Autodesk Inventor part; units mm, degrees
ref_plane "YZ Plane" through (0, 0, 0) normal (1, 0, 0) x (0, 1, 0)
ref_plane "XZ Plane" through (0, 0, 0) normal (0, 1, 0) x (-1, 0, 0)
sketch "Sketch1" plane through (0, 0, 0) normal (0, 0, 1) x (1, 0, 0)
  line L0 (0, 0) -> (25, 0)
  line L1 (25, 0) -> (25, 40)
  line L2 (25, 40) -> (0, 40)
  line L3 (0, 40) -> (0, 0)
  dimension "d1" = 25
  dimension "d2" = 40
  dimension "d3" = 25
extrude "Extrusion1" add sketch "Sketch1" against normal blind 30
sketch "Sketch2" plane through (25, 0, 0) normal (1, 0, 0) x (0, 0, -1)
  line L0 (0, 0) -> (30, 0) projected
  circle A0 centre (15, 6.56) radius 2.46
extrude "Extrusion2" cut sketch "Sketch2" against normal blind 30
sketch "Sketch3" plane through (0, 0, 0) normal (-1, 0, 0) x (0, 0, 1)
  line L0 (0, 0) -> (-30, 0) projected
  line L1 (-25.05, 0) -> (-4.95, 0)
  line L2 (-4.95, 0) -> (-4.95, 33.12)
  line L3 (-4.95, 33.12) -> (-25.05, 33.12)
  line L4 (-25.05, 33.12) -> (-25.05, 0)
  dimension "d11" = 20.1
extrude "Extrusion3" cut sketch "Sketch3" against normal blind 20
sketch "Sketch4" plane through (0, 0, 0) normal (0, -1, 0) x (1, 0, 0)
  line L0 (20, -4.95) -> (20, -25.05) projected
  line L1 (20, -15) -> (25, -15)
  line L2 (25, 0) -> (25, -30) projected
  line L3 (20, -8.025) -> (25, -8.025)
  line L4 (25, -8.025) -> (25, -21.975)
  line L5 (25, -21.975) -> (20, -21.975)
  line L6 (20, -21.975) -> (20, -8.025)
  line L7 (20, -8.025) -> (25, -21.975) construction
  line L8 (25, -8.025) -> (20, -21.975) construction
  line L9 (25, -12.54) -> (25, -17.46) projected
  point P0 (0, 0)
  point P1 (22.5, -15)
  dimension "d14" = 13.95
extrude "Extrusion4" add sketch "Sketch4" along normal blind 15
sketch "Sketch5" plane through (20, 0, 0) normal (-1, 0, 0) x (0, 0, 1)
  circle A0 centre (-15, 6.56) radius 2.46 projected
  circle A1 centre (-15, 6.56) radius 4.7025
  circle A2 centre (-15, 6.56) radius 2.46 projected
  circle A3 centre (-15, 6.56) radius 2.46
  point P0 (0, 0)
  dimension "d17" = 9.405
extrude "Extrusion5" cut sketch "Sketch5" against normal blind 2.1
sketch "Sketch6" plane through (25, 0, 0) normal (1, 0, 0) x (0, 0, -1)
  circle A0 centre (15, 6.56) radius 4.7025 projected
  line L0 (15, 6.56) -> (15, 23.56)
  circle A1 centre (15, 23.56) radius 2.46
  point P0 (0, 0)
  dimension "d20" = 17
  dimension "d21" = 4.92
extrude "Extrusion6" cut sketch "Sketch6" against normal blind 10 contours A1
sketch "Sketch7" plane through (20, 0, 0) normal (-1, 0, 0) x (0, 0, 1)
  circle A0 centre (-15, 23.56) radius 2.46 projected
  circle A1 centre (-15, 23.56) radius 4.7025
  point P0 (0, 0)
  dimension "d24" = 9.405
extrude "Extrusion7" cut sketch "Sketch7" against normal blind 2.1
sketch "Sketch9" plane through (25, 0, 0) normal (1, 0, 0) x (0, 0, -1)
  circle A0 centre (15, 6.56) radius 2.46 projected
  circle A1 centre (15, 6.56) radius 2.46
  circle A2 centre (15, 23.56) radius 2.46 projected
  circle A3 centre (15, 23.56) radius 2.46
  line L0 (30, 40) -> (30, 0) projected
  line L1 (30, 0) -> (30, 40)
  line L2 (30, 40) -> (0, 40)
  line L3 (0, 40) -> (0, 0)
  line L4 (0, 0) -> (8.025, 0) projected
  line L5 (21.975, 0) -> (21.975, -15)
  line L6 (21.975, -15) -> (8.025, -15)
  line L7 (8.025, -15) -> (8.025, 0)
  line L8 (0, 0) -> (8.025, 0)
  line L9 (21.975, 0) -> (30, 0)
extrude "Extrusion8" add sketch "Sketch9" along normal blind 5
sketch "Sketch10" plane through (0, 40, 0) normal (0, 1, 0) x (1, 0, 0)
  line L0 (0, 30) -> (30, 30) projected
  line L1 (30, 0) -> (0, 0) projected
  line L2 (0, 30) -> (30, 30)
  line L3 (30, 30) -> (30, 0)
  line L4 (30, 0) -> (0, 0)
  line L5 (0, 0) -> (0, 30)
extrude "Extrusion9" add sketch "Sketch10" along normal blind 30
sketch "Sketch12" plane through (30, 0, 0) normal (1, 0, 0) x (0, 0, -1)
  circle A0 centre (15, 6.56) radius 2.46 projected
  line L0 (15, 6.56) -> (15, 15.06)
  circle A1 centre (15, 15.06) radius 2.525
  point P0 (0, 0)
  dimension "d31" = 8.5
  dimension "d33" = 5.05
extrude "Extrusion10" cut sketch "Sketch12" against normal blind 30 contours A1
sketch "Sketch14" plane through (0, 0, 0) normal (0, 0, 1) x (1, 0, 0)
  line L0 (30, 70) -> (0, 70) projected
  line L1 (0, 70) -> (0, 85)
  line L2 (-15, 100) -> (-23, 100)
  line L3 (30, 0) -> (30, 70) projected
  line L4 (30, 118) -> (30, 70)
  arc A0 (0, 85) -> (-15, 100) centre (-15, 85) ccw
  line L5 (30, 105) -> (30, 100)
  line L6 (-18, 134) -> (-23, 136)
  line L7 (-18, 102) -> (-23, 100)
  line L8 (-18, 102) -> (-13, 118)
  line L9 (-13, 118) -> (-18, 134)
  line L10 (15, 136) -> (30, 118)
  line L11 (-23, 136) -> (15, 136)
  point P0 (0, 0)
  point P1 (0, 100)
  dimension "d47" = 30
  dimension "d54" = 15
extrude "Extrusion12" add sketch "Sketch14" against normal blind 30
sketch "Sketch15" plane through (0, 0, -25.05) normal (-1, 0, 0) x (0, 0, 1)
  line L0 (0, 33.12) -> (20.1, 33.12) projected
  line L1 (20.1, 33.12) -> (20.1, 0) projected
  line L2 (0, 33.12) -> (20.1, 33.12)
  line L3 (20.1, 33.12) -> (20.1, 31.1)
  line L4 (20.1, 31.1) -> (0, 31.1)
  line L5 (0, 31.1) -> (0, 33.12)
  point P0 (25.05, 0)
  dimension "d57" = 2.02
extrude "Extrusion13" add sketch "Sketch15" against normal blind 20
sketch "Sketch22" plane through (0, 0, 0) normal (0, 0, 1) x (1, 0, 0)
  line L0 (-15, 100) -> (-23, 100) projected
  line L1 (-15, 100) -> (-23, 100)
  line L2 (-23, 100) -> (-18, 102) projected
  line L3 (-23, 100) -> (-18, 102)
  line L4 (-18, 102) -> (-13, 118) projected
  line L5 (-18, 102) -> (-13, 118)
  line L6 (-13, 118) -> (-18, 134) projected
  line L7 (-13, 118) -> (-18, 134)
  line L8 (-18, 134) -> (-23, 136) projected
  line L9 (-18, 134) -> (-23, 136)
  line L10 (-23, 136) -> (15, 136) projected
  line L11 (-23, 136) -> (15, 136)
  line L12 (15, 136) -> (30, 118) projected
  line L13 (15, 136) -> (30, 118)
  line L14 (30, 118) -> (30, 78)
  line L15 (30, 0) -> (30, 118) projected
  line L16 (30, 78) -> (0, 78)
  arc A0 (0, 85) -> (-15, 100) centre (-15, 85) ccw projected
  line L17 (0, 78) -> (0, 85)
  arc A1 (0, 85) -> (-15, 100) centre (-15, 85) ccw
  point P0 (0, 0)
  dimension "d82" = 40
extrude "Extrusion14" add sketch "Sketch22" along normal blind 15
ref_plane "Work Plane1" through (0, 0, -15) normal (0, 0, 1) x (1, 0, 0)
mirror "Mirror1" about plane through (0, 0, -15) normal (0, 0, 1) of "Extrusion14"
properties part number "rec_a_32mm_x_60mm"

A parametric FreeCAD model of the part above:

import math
import FreeCAD as App
import Part
import Sketcher
Q = App.Units.Quantity

doc = App.newDocument("Part")
body = doc.addObject("PartDesign::Body", "Body")

# Sketch on XY plane
sketch1 = body.newObject("Sketcher::SketchObject", "Sketch")
sketch1.AttachmentSupport = (doc.getObject("XY_Plane"), [""])
sketch1.MapMode = "FlatFace"
sketch1.addGeometry([
    Part.LineSegment(App.Vector(0, 40, 0), App.Vector(0, 0, 0)),
    Part.LineSegment(App.Vector(0, 0, 0), App.Vector(25, 0, 0)),
    Part.LineSegment(App.Vector(25, 0, 0), App.Vector(25, 40, 0)),
    Part.LineSegment(App.Vector(25, 40, 0), App.Vector(0, 40, 0)),
], False)
sketch1.addConstraint([
    Sketcher.Constraint("Coincident", 0, 2, 1, 1),
    Sketcher.Constraint("Coincident", 1, 2, 2, 1),
    Sketcher.Constraint("Coincident", 2, 2, 3, 1),
    Sketcher.Constraint("Coincident", 3, 2, 0, 1),
    Sketcher.Constraint("Vertical", 0),
    Sketcher.Constraint("Horizontal", 1),
    Sketcher.Constraint("Vertical", 2),
    Sketcher.Constraint("Horizontal", 3),
    Sketcher.Constraint("Coincident", 0, 2, -1, 1),
    Sketcher.Constraint("DistanceX", 1, 1, 1, 2, Q("25 mm")),
    Sketcher.Constraint("DistanceY", 0, 2, 0, 1, Q("40 mm")),
])
pad1 = body.newObject("PartDesign::Pad", "Pad")
pad1.Profile = sketch1
pad1.Length = 30
pad1.Reversed = True

# Sketch on YZ plane
sketch2 = body.newObject("Sketcher::SketchObject", "Sketch001")
sketch2.AttachmentSupport = (doc.getObject("YZ_Plane"), [""])
sketch2.MapMode = "FlatFace"
sketch2.AttachmentOffset = App.Placement(App.Vector(0, 0, 25), App.Rotation())
sketch2.addGeometry(Part.Circle(App.Vector(6.56, -15, 0), App.Vector(0, 0, 1), 2.46), False)
sketch2.addConstraint([
    Sketcher.Constraint("Diameter", 0, Q("4.92 mm")),
    Sketcher.Constraint("DistanceY", 0, 3, -1, 1, Q("15 mm")),
    Sketcher.Constraint("DistanceX", -1, 1, 0, 3, Q("6.56 mm")),
])
pocket1 = body.newObject("PartDesign::Pocket", "Pocket")
pocket1.Profile = sketch2
pocket1.Length = 30

# Sketch on YZ plane
sketch3 = body.newObject("Sketcher::SketchObject", "Sketch002")
sketch3.AttachmentSupport = (doc.getObject("YZ_Plane"), [""])
sketch3.MapMode = "FlatFace"
sketch3.addGeometry([
    Part.LineSegment(App.Vector(0, -25.05, 0), App.Vector(0, -4.95, 0)),
    Part.LineSegment(App.Vector(0, -4.95, 0), App.Vector(33.12, -4.95, 0)),
    Part.LineSegment(App.Vector(33.12, -4.95, 0), App.Vector(33.12, -25.05, 0)),
    Part.LineSegment(App.Vector(33.12, -25.05, 0), App.Vector(0, -25.05, 0)),
], False)
sketch3.addConstraint([
    Sketcher.Constraint("Coincident", 0, 2, 1, 1),
    Sketcher.Constraint("Coincident", 1, 2, 2, 1),
    Sketcher.Constraint("Coincident", 2, 2, 3, 1),
    Sketcher.Constraint("Coincident", 3, 2, 0, 1),
    Sketcher.Constraint("Vertical", 0),
    Sketcher.Constraint("Horizontal", 1),
    Sketcher.Constraint("Vertical", 2),
    Sketcher.Constraint("Horizontal", 3),
    Sketcher.Constraint("PointOnObject", 0, 2, -2),
    Sketcher.Constraint("DistanceY", 0, 1, 0, 2, Q("20.1 mm")),
    Sketcher.Constraint("DistanceX", 1, 1, 1, 2, Q("33.12 mm")),
    Sketcher.Constraint("DistanceY", 0, 2, -1, 1, Q("4.95 mm")),
])
pocket2 = body.newObject("PartDesign::Pocket", "Pocket001")
pocket2.Profile = sketch3
pocket2.Length = 20
pocket2.Reversed = True

# Sketch on XZ plane
sketch4 = body.newObject("Sketcher::SketchObject", "Sketch003")
sketch4.AttachmentSupport = (doc.getObject("XZ_Plane"), [""])
sketch4.MapMode = "FlatFace"
sketch4.addGeometry([
    Part.LineSegment(App.Vector(25, -8.025, 0), App.Vector(20, -8.025, 0)),
    Part.LineSegment(App.Vector(20, -8.025, 0), App.Vector(20, -21.975, 0)),
    Part.LineSegment(App.Vector(20, -21.975, 0), App.Vector(25, -21.975, 0)),
    Part.LineSegment(App.Vector(25, -21.975, 0), App.Vector(25, -8.025, 0)),
], False)
sketch4.addConstraint([
    Sketcher.Constraint("Coincident", 0, 2, 1, 1),
    Sketcher.Constraint("Coincident", 1, 2, 2, 1),
    Sketcher.Constraint("Coincident", 2, 2, 3, 1),
    Sketcher.Constraint("Coincident", 3, 2, 0, 1),
    Sketcher.Constraint("Horizontal", 0),
    Sketcher.Constraint("Vertical", 1),
    Sketcher.Constraint("Horizontal", 2),
    Sketcher.Constraint("Vertical", 3),
    Sketcher.Constraint("DistanceY", 1, 2, 1, 1, Q("13.95 mm")),
    Sketcher.Constraint("DistanceX", 0, 2, 0, 1, Q("5 mm")),
    Sketcher.Constraint("DistanceX", -1, 1, 0, 2, Q("20 mm")),
    Sketcher.Constraint("DistanceY", 0, 2, -1, 1, Q("8.025 mm")),
])
pad2 = body.newObject("PartDesign::Pad", "Pad001")
pad2.Profile = sketch4
pad2.Length = 15

# Sketch on YZ plane
sketch5 = body.newObject("Sketcher::SketchObject", "Sketch004")
sketch5.AttachmentSupport = (doc.getObject("YZ_Plane"), [""])
sketch5.MapMode = "FlatFace"
sketch5.AttachmentOffset = App.Placement(App.Vector(0, 0, 20), App.Rotation())
sketch5.addGeometry([
    Part.Circle(App.Vector(6.56, -15, 0), App.Vector(0, 0, 1), 4.7025),
    Part.Circle(App.Vector(6.56, -15, 0), App.Vector(0, 0, 1), 2.46),
], False)
sketch5.addConstraint([
    Sketcher.Constraint("Coincident", 1, 3, 0, 3),
    Sketcher.Constraint("Diameter", 0, Q("9.405 mm")),
    Sketcher.Constraint("Diameter", 1, Q("4.92 mm")),
    Sketcher.Constraint("DistanceY", 0, 3, -1, 1, Q("15 mm")),
    Sketcher.Constraint("DistanceX", -1, 1, 0, 3, Q("6.56 mm")),
])
pocket3 = body.newObject("PartDesign::Pocket", "Pocket002")
pocket3.Profile = sketch5
pocket3.Length = 2.1
pocket3.Reversed = True

# Sketch on YZ plane
sketch6 = body.newObject("Sketcher::SketchObject", "Sketch005")
sketch6.AttachmentSupport = (doc.getObject("YZ_Plane"), [""])
sketch6.MapMode = "FlatFace"
sketch6.AttachmentOffset = App.Placement(App.Vector(0, 0, 25), App.Rotation())
sketch6.addGeometry(Part.Circle(App.Vector(23.56, -15, 0), App.Vector(0, 0, 1), 2.46), False)
sketch6.addConstraint([
    Sketcher.Constraint("Diameter", 0, Q("4.92 mm")),
    Sketcher.Constraint("DistanceY", 0, 3, -1, 1, Q("15 mm")),
    Sketcher.Constraint("DistanceX", -1, 1, 0, 3, Q("23.56 mm")),
])
pocket4 = body.newObject("PartDesign::Pocket", "Pocket003")
pocket4.Profile = sketch6
pocket4.Length = 10

# Sketch on YZ plane
sketch7 = body.newObject("Sketcher::SketchObject", "Sketch006")
sketch7.AttachmentSupport = (doc.getObject("YZ_Plane"), [""])
sketch7.MapMode = "FlatFace"
sketch7.AttachmentOffset = App.Placement(App.Vector(0, 0, 20), App.Rotation())
sketch7.addGeometry([
    Part.Circle(App.Vector(23.56, -15, 0), App.Vector(0, 0, 1), 4.7025),
    Part.Circle(App.Vector(23.56, -15, 0), App.Vector(0, 0, 1), 2.46),
], False)
sketch7.addConstraint([
    Sketcher.Constraint("Coincident", 1, 3, 0, 3),
    Sketcher.Constraint("Diameter", 0, Q("9.405 mm")),
    Sketcher.Constraint("Diameter", 1, Q("4.92 mm")),
    Sketcher.Constraint("DistanceY", 0, 3, -1, 1, Q("15 mm")),
    Sketcher.Constraint("DistanceX", -1, 1, 0, 3, Q("23.56 mm")),
])
pocket5 = body.newObject("PartDesign::Pocket", "Pocket004")
pocket5.Profile = sketch7
pocket5.Length = 2.1
pocket5.Reversed = True

# Sketch on YZ plane
sketch8 = body.newObject("Sketcher::SketchObject", "Sketch007")
sketch8.AttachmentSupport = (doc.getObject("YZ_Plane"), [""])
sketch8.MapMode = "FlatFace"
sketch8.AttachmentOffset = App.Placement(App.Vector(0, 0, 25), App.Rotation())
sketch8.addGeometry([
    Part.LineSegment(App.Vector(0, -30, 0), App.Vector(40, -30, 0)),  # 0
    Part.LineSegment(App.Vector(40, -30, 0), App.Vector(40, 0, 0)),  # 1
    Part.LineSegment(App.Vector(40, 0, 0), App.Vector(0, 0, 0)),  # 2
    Part.LineSegment(App.Vector(0, 0, 0), App.Vector(0, -8.025, 0)),  # 3
    Part.LineSegment(App.Vector(0, -8.025, 0), App.Vector(-15, -8.025, 0)),  # 4
    Part.LineSegment(App.Vector(-15, -8.025, 0), App.Vector(-15, -21.975, 0)),  # 5
    Part.LineSegment(App.Vector(-15, -21.975, 0), App.Vector(0, -21.975, 0)),  # 6
    Part.LineSegment(App.Vector(0, -21.975, 0), App.Vector(0, -30, 0)),  # 7
    Part.Circle(App.Vector(6.56, -15, 0), App.Vector(0, 0, 1), 2.46),  # 8
    Part.Circle(App.Vector(23.56, -15, 0), App.Vector(0, 0, 1), 2.46),  # 9
], False)
sketch8.addConstraint([
    Sketcher.Constraint("Coincident", 0, 2, 1, 1),
    Sketcher.Constraint("Coincident", 1, 2, 2, 1),
    Sketcher.Constraint("Coincident", 2, 2, 3, 1),
    Sketcher.Constraint("Coincident", 3, 2, 4, 1),
    Sketcher.Constraint("Coincident", 4, 2, 5, 1),
    Sketcher.Constraint("Coincident", 5, 2, 6, 1),
    Sketcher.Constraint("Coincident", 6, 2, 7, 1),
    Sketcher.Constraint("Coincident", 7, 2, 0, 1),
    Sketcher.Constraint("Horizontal", 0),
    Sketcher.Constraint("Vertical", 1),
    Sketcher.Constraint("Horizontal", 2),
    Sketcher.Constraint("Vertical", 3),
    Sketcher.Constraint("Horizontal", 4),
    Sketcher.Constraint("Vertical", 5),
    Sketcher.Constraint("Horizontal", 6),
    Sketcher.Constraint("Vertical", 7),
    Sketcher.Constraint("Coincident", 2, 2, -1, 1),
    Sketcher.Constraint("Equal", 8, 9),
    Sketcher.Constraint("PointOnObject", 6, 2, -2),
    Sketcher.Constraint("Horizontal", 8, 3, 9, 3),
    Sketcher.Constraint("Equal", 3, 7),
    Sketcher.Constraint("Diameter", 8, Q("4.92 mm")),
    Sketcher.Constraint("DistanceX", 0, 1, 0, 2, Q("40 mm")),
    Sketcher.Constraint("DistanceX", 4, 2, 4, 1, Q("15 mm")),
    Sketcher.Constraint("DistanceY", 1, 1, 1, 2, Q("30 mm")),
    Sketcher.Constraint("DistanceY", 8, 3, -1, 1, Q("15 mm")),
    Sketcher.Constraint("DistanceX", 8, 3, 9, 3, Q("17 mm")),
    Sketcher.Constraint("DistanceY", 5, 2, 5, 1, Q("13.95 mm")),
    Sketcher.Constraint("DistanceX", -1, 1, 8, 3, Q("6.56 mm")),
])
pad3 = body.newObject("PartDesign::Pad", "Pad002")
pad3.Profile = sketch8
pad3.Length = 5

# Sketch on XZ plane
sketch9 = body.newObject("Sketcher::SketchObject", "Sketch008")
sketch9.AttachmentSupport = (doc.getObject("XZ_Plane"), [""])
sketch9.MapMode = "FlatFace"
sketch9.AttachmentOffset = App.Placement(App.Vector(0, 0, -40), App.Rotation())
sketch9.addGeometry([
    Part.LineSegment(App.Vector(30, -30, 0), App.Vector(0, -30, 0)),
    Part.LineSegment(App.Vector(0, -30, 0), App.Vector(0, 0, 0)),
    Part.LineSegment(App.Vector(0, 0, 0), App.Vector(30, 0, 0)),
    Part.LineSegment(App.Vector(30, 0, 0), App.Vector(30, -30, 0)),
], False)
sketch9.addConstraint([
    Sketcher.Constraint("Coincident", 0, 2, 1, 1),
    Sketcher.Constraint("Coincident", 1, 2, 2, 1),
    Sketcher.Constraint("Coincident", 2, 2, 3, 1),
    Sketcher.Constraint("Coincident", 3, 2, 0, 1),
    Sketcher.Constraint("Horizontal", 0),
    Sketcher.Constraint("Vertical", 1),
    Sketcher.Constraint("Horizontal", 2),
    Sketcher.Constraint("Vertical", 3),
    Sketcher.Constraint("Coincident", 1, 2, -1, 1),
    Sketcher.Constraint("Equal", 2, 1),
    Sketcher.Constraint("DistanceX", 0, 2, 0, 1, Q("30 mm")),
])
pad4 = body.newObject("PartDesign::Pad", "Pad003")
pad4.Profile = sketch9
pad4.Length = 30
pad4.Reversed = True

# Sketch on YZ plane
sketch10 = body.newObject("Sketcher::SketchObject", "Sketch009")
sketch10.AttachmentSupport = (doc.getObject("YZ_Plane"), [""])
sketch10.MapMode = "FlatFace"
sketch10.AttachmentOffset = App.Placement(App.Vector(0, 0, 30), App.Rotation())
sketch10.addGeometry(Part.Circle(App.Vector(15.06, -15, 0), App.Vector(0, 0, 1), 2.525), False)
sketch10.addConstraint([
    Sketcher.Constraint("Diameter", 0, Q("5.05 mm")),
    Sketcher.Constraint("DistanceY", 0, 3, -1, 1, Q("15 mm")),
    Sketcher.Constraint("DistanceX", -1, 1, 0, 3, Q("15.06 mm")),
])
pocket6 = body.newObject("PartDesign::Pocket", "Pocket005")
pocket6.Profile = sketch10
pocket6.Length = 30

# Sketch on XY plane
sketch11 = body.newObject("Sketcher::SketchObject", "Sketch010")
sketch11.AttachmentSupport = (doc.getObject("XY_Plane"), [""])
sketch11.MapMode = "FlatFace"
sketch11.addGeometry([
    Part.LineSegment(App.Vector(0, 70, 0), App.Vector(30, 70, 0)),  # 0
    Part.LineSegment(App.Vector(30, 70, 0), App.Vector(30, 118, 0)),  # 1
    Part.LineSegment(App.Vector(30, 118, 0), App.Vector(15, 136, 0)),  # 2
    Part.LineSegment(App.Vector(15, 136, 0), App.Vector(-23, 136, 0)),  # 3
    Part.LineSegment(App.Vector(-23, 136, 0), App.Vector(-18, 134, 0)),  # 4
    Part.LineSegment(App.Vector(-18, 134, 0), App.Vector(-13, 118, 0)),  # 5
    Part.LineSegment(App.Vector(-13, 118, 0), App.Vector(-18, 102, 0)),  # 6
    Part.LineSegment(App.Vector(-18, 102, 0), App.Vector(-23, 100, 0)),  # 7
    Part.LineSegment(App.Vector(-23, 100, 0), App.Vector(-15, 100, 0)),  # 8
    Part.ArcOfCircle(Part.Circle(App.Vector(-15, 85, 0), App.Vector(0, 0, 1), 15), math.radians(0), math.radians(90)),  # 9
    Part.LineSegment(App.Vector(0, 85, 0), App.Vector(0, 70, 0)),  # 10
], False)
sketch11.addConstraint([
    Sketcher.Constraint("Coincident", 0, 2, 1, 1),
    Sketcher.Constraint("Coincident", 1, 2, 2, 1),
    Sketcher.Constraint("Coincident", 2, 2, 3, 1),
    Sketcher.Constraint("Coincident", 3, 2, 4, 1),
    Sketcher.Constraint("Coincident", 4, 2, 5, 1),
    Sketcher.Constraint("Coincident", 5, 2, 6, 1),
    Sketcher.Constraint("Coincident", 6, 2, 7, 1),
    Sketcher.Constraint("Coincident", 7, 2, 8, 1),
    Sketcher.Constraint("Tangent", 8, 2, 9, 2),
    Sketcher.Constraint("Tangent", 9, 1, 10, 1),
    Sketcher.Constraint("Coincident", 10, 2, 0, 1),
    Sketcher.Constraint("Horizontal", 0),
    Sketcher.Constraint("Vertical", 1),
    Sketcher.Constraint("Horizontal", 3),
    Sketcher.Constraint("Horizontal", 8),
    Sketcher.Constraint("Vertical", 10),
    Sketcher.Constraint("PointOnObject", 9, 1, -2),
    Sketcher.Constraint("Horizontal", 1, 2, 5, 2),
    Sketcher.Constraint("Vertical", 4, 2, 6, 2),
    Sketcher.Constraint("Vertical", 3, 2, 7, 2),
    Sketcher.Constraint("Equal", 5, 6),
    Sketcher.Constraint("Equal", 4, 7),
    Sketcher.Constraint("Radius", 9, Q("15 mm")),
    Sketcher.Constraint("DistanceX", 0, 1, 0, 2, Q("30 mm")),
    Sketcher.Constraint("DistanceY", 10, 2, 10, 1, Q("15 mm")),
    Sketcher.Constraint("DistanceX", -1, 1, 2, 2, Q("15 mm")),
    Sketcher.Constraint("DistanceX", 3, 2, 3, 1, Q("38 mm")),
    Sketcher.Constraint("DistanceY", 1, 1, 1, 2, Q("48 mm")),
    Sketcher.Constraint("DistanceY", -1, 1, 9, 3, Q("85 mm")),
    Sketcher.Constraint("DistanceX", 4, 2, -1, 1, Q("18 mm")),
    Sketcher.Constraint("DistanceY", -1, 1, 4, 2, Q("134 mm")),
    Sketcher.Constraint("DistanceX", 5, 2, -1, 1, Q("13 mm")),
])
pad5 = body.newObject("PartDesign::Pad", "Pad004")
pad5.Profile = sketch11
pad5.Length = 30
pad5.Reversed = True

# Sketch on YZ plane
sketch12 = body.newObject("Sketcher::SketchObject", "Sketch011")
sketch12.AttachmentSupport = (doc.getObject("YZ_Plane"), [""])
sketch12.MapMode = "FlatFace"
sketch12.addGeometry([
    Part.LineSegment(App.Vector(33.12, -4.95, 0), App.Vector(33.12, -25.05, 0)),
    Part.LineSegment(App.Vector(33.12, -25.05, 0), App.Vector(31.1, -25.05, 0)),
    Part.LineSegment(App.Vector(31.1, -25.05, 0), App.Vector(31.1, -4.95, 0)),
    Part.LineSegment(App.Vector(31.1, -4.95, 0), App.Vector(33.12, -4.95, 0)),
], False)
sketch12.addConstraint([
    Sketcher.Constraint("Coincident", 0, 2, 1, 1),
    Sketcher.Constraint("Coincident", 1, 2, 2, 1),
    Sketcher.Constraint("Coincident", 2, 2, 3, 1),
    Sketcher.Constraint("Coincident", 3, 2, 0, 1),
    Sketcher.Constraint("Vertical", 0),
    Sketcher.Constraint("Horizontal", 1),
    Sketcher.Constraint("Vertical", 2),
    Sketcher.Constraint("Horizontal", 3),
    Sketcher.Constraint("DistanceX", 1, 2, 1, 1, Q("2.02 mm")),
    Sketcher.Constraint("DistanceY", 0, 2, 0, 1, Q("20.1 mm")),
    Sketcher.Constraint("DistanceX", -1, 1, 1, 2, Q("31.1 mm")),
    Sketcher.Constraint("DistanceY", 0, 2, -1, 1, Q("25.05 mm")),
])
pad6 = body.newObject("PartDesign::Pad", "Pad005")
pad6.Profile = sketch12
pad6.Length = 20

# Sketch on XY plane
sketch13 = body.newObject("Sketcher::SketchObject", "Sketch012")
sketch13.AttachmentSupport = (doc.getObject("XY_Plane"), [""])
sketch13.MapMode = "FlatFace"
sketch13.addGeometry([
    Part.LineSegment(App.Vector(-23, 100, 0), App.Vector(-15, 100, 0)),  # 0
    Part.ArcOfCircle(Part.Circle(App.Vector(-15, 85, 0), App.Vector(0, 0, 1), 15), math.radians(0), math.radians(90)),  # 1
    Part.LineSegment(App.Vector(0, 85, 0), App.Vector(0, 78, 0)),  # 2
    Part.LineSegment(App.Vector(0, 78, 0), App.Vector(30, 78, 0)),  # 3
    Part.LineSegment(App.Vector(30, 78, 0), App.Vector(30, 118, 0)),  # 4
    Part.LineSegment(App.Vector(30, 118, 0), App.Vector(15, 136, 0)),  # 5
    Part.LineSegment(App.Vector(15, 136, 0), App.Vector(-23, 136, 0)),  # 6
    Part.LineSegment(App.Vector(-23, 136, 0), App.Vector(-18, 134, 0)),  # 7
    Part.LineSegment(App.Vector(-18, 134, 0), App.Vector(-13, 118, 0)),  # 8
    Part.LineSegment(App.Vector(-13, 118, 0), App.Vector(-18, 102, 0)),  # 9
    Part.LineSegment(App.Vector(-18, 102, 0), App.Vector(-23, 100, 0)),  # 10
], False)
sketch13.addConstraint([
    Sketcher.Constraint("Tangent", 0, 2, 1, 2),
    Sketcher.Constraint("Tangent", 1, 1, 2, 1),
    Sketcher.Constraint("Coincident", 2, 2, 3, 1),
    Sketcher.Constraint("Coincident", 3, 2, 4, 1),
    Sketcher.Constraint("Coincident", 4, 2, 5, 1),
    Sketcher.Constraint("Coincident", 5, 2, 6, 1),
    Sketcher.Constraint("Coincident", 6, 2, 7, 1),
    Sketcher.Constraint("Coincident", 7, 2, 8, 1),
    Sketcher.Constraint("Coincident", 8, 2, 9, 1),
    Sketcher.Constraint("Coincident", 9, 2, 10, 1),
    Sketcher.Constraint("Coincident", 10, 2, 0, 1),
    Sketcher.Constraint("Horizontal", 0),
    Sketcher.Constraint("Vertical", 2),
    Sketcher.Constraint("Horizontal", 3),
    Sketcher.Constraint("Vertical", 4),
    Sketcher.Constraint("Horizontal", 6),
    Sketcher.Constraint("PointOnObject", 1, 1, -2),
    Sketcher.Constraint("Horizontal", 4, 2, 8, 2),
    Sketcher.Constraint("Vertical", 7, 2, 9, 2),
    Sketcher.Constraint("Vertical", 6, 2, 10, 2),
    Sketcher.Constraint("Equal", 8, 9),
    Sketcher.Constraint("Equal", 7, 10),
    Sketcher.Constraint("DistanceY", 4, 1, 4, 2, Q("40 mm")),
    Sketcher.Constraint("Radius", 1, Q("15 mm")),
    Sketcher.Constraint("DistanceX", 0, 1, 0, 2, Q("8 mm")),
    Sketcher.Constraint("DistanceX", 3, 1, 3, 2, Q("30 mm")),
    Sketcher.Constraint("DistanceX", 6, 2, 6, 1, Q("38 mm")),
    Sketcher.Constraint("DistanceY", 2, 2, 2, 1, Q("7 mm")),
    Sketcher.Constraint("DistanceY", -1, 1, 1, 3, Q("85 mm")),
    Sketcher.Constraint("DistanceX", 7, 2, -1, 1, Q("18 mm")),
    Sketcher.Constraint("DistanceY", -1, 1, 7, 2, Q("134 mm")),
    Sketcher.Constraint("DistanceX", 8, 2, -1, 1, Q("13 mm")),
])
pad7 = body.newObject("PartDesign::Pad", "Pad006")
pad7.Profile = sketch13
pad7.Length = 15
doc.recompute()

datumplane = body.newObject("PartDesign::Plane", "DatumPlane")
datumplane.AttachmentSupport = (doc.getObject("XY_Plane"), [""])
datumplane.MapMode = "FlatFace"
datumplane.AttachmentOffset = App.Placement(App.Vector(0, 0, -15), App.Rotation())
mirrored = body.newObject("PartDesign::Mirrored", "Mirrored")
mirrored.Originals = [pad7]
mirrored.MirrorPlane = (datumplane, [""])
body.Tip = mirrored

doc.recompute()
